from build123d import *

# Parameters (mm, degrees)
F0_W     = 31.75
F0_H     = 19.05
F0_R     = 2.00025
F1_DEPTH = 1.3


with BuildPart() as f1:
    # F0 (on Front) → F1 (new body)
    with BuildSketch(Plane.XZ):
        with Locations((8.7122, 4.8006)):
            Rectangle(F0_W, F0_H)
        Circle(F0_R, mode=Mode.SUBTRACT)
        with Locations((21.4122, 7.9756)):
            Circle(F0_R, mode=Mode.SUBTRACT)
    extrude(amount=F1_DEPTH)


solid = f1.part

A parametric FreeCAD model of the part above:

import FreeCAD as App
import Part
import Sketcher

V = App.Vector
Q = App.Units.Quantity

doc = App.newDocument("Part")
body = doc.addObject("PartDesign::Body", "Body")

# Sketch on XZ plane
sketch1 = doc.addObject("Sketcher::SketchObject", "Sketch")
body.addObject(sketch1)
sketch1.AttachmentSupport = (doc.XZ_Plane, [""])
sketch1.MapMode = "FlatFace"
sketch1.addGeometry(Part.LineSegment(V(-7.1628, 14.3256, 0), V(-7.1628, -4.7244, 0)), False)
sketch1.addGeometry(Part.LineSegment(V(-7.1628, -4.7244, 0), V(24.5872, -4.7244, 0)), False)
sketch1.addGeometry(Part.LineSegment(V(24.5872, -4.7244, 0), V(24.5872, 14.3256, 0)), False)
sketch1.addGeometry(Part.LineSegment(V(24.5872, 14.3256, 0), V(-7.1628, 14.3256, 0)), False)
sketch1.addGeometry(Part.Circle(V(0, 0, 0), V(0, 0, 1), 2.00025), False)
sketch1.addGeometry(Part.Circle(V(21.4122, 7.9756, 0), V(0, 0, 1), 2.00025), False)
sketch1.addConstraint(Sketcher.Constraint("Coincident", 0, 2, 1, 1))
sketch1.addConstraint(Sketcher.Constraint("Coincident", 1, 2, 2, 1))
sketch1.addConstraint(Sketcher.Constraint("Coincident", 2, 2, 3, 1))
sketch1.addConstraint(Sketcher.Constraint("Coincident", 3, 2, 0, 1))
sketch1.addConstraint(Sketcher.Constraint("Vertical", 0))
sketch1.addConstraint(Sketcher.Constraint("Horizontal", 1))
sketch1.addConstraint(Sketcher.Constraint("Vertical", 2))
sketch1.addConstraint(Sketcher.Constraint("Horizontal", 3))
sketch1.addConstraint(Sketcher.Constraint("Coincident", 4, 3, -1, 1))
sketch1.addConstraint(Sketcher.Constraint("Equal", 4, 5))
sketch1.addConstraint(Sketcher.Constraint("Diameter", 4, Q("0.1575 in")))
sketch1.addConstraint(Sketcher.Constraint("DistanceX", 1, 1, 1, 2, Q("1.25 in")))
sketch1.addConstraint(Sketcher.Constraint("DistanceY", 0, 2, 0, 1, Q("0.75 in")))
sketch1.addConstraint(Sketcher.Constraint("DistanceY", 0, 2, 5, 3, Q("0.5 in")))
sketch1.addConstraint(Sketcher.Constraint("DistanceX", -1, 1, 5, 3, Q("0.843 in")))
sketch1.addConstraint(Sketcher.Constraint("DistanceY", -1, 1, 5, 3, Q("0.314 in")))
sketch1.addConstraint(Sketcher.Constraint("DistanceX", 0, 2, -1, 1, Q("0.282 in")))
pad1 = doc.addObject("PartDesign::Pad", "Pad")
body.addObject(pad1)
pad1.Profile = sketch1
pad1.Length = 1.3

doc.recompute()
